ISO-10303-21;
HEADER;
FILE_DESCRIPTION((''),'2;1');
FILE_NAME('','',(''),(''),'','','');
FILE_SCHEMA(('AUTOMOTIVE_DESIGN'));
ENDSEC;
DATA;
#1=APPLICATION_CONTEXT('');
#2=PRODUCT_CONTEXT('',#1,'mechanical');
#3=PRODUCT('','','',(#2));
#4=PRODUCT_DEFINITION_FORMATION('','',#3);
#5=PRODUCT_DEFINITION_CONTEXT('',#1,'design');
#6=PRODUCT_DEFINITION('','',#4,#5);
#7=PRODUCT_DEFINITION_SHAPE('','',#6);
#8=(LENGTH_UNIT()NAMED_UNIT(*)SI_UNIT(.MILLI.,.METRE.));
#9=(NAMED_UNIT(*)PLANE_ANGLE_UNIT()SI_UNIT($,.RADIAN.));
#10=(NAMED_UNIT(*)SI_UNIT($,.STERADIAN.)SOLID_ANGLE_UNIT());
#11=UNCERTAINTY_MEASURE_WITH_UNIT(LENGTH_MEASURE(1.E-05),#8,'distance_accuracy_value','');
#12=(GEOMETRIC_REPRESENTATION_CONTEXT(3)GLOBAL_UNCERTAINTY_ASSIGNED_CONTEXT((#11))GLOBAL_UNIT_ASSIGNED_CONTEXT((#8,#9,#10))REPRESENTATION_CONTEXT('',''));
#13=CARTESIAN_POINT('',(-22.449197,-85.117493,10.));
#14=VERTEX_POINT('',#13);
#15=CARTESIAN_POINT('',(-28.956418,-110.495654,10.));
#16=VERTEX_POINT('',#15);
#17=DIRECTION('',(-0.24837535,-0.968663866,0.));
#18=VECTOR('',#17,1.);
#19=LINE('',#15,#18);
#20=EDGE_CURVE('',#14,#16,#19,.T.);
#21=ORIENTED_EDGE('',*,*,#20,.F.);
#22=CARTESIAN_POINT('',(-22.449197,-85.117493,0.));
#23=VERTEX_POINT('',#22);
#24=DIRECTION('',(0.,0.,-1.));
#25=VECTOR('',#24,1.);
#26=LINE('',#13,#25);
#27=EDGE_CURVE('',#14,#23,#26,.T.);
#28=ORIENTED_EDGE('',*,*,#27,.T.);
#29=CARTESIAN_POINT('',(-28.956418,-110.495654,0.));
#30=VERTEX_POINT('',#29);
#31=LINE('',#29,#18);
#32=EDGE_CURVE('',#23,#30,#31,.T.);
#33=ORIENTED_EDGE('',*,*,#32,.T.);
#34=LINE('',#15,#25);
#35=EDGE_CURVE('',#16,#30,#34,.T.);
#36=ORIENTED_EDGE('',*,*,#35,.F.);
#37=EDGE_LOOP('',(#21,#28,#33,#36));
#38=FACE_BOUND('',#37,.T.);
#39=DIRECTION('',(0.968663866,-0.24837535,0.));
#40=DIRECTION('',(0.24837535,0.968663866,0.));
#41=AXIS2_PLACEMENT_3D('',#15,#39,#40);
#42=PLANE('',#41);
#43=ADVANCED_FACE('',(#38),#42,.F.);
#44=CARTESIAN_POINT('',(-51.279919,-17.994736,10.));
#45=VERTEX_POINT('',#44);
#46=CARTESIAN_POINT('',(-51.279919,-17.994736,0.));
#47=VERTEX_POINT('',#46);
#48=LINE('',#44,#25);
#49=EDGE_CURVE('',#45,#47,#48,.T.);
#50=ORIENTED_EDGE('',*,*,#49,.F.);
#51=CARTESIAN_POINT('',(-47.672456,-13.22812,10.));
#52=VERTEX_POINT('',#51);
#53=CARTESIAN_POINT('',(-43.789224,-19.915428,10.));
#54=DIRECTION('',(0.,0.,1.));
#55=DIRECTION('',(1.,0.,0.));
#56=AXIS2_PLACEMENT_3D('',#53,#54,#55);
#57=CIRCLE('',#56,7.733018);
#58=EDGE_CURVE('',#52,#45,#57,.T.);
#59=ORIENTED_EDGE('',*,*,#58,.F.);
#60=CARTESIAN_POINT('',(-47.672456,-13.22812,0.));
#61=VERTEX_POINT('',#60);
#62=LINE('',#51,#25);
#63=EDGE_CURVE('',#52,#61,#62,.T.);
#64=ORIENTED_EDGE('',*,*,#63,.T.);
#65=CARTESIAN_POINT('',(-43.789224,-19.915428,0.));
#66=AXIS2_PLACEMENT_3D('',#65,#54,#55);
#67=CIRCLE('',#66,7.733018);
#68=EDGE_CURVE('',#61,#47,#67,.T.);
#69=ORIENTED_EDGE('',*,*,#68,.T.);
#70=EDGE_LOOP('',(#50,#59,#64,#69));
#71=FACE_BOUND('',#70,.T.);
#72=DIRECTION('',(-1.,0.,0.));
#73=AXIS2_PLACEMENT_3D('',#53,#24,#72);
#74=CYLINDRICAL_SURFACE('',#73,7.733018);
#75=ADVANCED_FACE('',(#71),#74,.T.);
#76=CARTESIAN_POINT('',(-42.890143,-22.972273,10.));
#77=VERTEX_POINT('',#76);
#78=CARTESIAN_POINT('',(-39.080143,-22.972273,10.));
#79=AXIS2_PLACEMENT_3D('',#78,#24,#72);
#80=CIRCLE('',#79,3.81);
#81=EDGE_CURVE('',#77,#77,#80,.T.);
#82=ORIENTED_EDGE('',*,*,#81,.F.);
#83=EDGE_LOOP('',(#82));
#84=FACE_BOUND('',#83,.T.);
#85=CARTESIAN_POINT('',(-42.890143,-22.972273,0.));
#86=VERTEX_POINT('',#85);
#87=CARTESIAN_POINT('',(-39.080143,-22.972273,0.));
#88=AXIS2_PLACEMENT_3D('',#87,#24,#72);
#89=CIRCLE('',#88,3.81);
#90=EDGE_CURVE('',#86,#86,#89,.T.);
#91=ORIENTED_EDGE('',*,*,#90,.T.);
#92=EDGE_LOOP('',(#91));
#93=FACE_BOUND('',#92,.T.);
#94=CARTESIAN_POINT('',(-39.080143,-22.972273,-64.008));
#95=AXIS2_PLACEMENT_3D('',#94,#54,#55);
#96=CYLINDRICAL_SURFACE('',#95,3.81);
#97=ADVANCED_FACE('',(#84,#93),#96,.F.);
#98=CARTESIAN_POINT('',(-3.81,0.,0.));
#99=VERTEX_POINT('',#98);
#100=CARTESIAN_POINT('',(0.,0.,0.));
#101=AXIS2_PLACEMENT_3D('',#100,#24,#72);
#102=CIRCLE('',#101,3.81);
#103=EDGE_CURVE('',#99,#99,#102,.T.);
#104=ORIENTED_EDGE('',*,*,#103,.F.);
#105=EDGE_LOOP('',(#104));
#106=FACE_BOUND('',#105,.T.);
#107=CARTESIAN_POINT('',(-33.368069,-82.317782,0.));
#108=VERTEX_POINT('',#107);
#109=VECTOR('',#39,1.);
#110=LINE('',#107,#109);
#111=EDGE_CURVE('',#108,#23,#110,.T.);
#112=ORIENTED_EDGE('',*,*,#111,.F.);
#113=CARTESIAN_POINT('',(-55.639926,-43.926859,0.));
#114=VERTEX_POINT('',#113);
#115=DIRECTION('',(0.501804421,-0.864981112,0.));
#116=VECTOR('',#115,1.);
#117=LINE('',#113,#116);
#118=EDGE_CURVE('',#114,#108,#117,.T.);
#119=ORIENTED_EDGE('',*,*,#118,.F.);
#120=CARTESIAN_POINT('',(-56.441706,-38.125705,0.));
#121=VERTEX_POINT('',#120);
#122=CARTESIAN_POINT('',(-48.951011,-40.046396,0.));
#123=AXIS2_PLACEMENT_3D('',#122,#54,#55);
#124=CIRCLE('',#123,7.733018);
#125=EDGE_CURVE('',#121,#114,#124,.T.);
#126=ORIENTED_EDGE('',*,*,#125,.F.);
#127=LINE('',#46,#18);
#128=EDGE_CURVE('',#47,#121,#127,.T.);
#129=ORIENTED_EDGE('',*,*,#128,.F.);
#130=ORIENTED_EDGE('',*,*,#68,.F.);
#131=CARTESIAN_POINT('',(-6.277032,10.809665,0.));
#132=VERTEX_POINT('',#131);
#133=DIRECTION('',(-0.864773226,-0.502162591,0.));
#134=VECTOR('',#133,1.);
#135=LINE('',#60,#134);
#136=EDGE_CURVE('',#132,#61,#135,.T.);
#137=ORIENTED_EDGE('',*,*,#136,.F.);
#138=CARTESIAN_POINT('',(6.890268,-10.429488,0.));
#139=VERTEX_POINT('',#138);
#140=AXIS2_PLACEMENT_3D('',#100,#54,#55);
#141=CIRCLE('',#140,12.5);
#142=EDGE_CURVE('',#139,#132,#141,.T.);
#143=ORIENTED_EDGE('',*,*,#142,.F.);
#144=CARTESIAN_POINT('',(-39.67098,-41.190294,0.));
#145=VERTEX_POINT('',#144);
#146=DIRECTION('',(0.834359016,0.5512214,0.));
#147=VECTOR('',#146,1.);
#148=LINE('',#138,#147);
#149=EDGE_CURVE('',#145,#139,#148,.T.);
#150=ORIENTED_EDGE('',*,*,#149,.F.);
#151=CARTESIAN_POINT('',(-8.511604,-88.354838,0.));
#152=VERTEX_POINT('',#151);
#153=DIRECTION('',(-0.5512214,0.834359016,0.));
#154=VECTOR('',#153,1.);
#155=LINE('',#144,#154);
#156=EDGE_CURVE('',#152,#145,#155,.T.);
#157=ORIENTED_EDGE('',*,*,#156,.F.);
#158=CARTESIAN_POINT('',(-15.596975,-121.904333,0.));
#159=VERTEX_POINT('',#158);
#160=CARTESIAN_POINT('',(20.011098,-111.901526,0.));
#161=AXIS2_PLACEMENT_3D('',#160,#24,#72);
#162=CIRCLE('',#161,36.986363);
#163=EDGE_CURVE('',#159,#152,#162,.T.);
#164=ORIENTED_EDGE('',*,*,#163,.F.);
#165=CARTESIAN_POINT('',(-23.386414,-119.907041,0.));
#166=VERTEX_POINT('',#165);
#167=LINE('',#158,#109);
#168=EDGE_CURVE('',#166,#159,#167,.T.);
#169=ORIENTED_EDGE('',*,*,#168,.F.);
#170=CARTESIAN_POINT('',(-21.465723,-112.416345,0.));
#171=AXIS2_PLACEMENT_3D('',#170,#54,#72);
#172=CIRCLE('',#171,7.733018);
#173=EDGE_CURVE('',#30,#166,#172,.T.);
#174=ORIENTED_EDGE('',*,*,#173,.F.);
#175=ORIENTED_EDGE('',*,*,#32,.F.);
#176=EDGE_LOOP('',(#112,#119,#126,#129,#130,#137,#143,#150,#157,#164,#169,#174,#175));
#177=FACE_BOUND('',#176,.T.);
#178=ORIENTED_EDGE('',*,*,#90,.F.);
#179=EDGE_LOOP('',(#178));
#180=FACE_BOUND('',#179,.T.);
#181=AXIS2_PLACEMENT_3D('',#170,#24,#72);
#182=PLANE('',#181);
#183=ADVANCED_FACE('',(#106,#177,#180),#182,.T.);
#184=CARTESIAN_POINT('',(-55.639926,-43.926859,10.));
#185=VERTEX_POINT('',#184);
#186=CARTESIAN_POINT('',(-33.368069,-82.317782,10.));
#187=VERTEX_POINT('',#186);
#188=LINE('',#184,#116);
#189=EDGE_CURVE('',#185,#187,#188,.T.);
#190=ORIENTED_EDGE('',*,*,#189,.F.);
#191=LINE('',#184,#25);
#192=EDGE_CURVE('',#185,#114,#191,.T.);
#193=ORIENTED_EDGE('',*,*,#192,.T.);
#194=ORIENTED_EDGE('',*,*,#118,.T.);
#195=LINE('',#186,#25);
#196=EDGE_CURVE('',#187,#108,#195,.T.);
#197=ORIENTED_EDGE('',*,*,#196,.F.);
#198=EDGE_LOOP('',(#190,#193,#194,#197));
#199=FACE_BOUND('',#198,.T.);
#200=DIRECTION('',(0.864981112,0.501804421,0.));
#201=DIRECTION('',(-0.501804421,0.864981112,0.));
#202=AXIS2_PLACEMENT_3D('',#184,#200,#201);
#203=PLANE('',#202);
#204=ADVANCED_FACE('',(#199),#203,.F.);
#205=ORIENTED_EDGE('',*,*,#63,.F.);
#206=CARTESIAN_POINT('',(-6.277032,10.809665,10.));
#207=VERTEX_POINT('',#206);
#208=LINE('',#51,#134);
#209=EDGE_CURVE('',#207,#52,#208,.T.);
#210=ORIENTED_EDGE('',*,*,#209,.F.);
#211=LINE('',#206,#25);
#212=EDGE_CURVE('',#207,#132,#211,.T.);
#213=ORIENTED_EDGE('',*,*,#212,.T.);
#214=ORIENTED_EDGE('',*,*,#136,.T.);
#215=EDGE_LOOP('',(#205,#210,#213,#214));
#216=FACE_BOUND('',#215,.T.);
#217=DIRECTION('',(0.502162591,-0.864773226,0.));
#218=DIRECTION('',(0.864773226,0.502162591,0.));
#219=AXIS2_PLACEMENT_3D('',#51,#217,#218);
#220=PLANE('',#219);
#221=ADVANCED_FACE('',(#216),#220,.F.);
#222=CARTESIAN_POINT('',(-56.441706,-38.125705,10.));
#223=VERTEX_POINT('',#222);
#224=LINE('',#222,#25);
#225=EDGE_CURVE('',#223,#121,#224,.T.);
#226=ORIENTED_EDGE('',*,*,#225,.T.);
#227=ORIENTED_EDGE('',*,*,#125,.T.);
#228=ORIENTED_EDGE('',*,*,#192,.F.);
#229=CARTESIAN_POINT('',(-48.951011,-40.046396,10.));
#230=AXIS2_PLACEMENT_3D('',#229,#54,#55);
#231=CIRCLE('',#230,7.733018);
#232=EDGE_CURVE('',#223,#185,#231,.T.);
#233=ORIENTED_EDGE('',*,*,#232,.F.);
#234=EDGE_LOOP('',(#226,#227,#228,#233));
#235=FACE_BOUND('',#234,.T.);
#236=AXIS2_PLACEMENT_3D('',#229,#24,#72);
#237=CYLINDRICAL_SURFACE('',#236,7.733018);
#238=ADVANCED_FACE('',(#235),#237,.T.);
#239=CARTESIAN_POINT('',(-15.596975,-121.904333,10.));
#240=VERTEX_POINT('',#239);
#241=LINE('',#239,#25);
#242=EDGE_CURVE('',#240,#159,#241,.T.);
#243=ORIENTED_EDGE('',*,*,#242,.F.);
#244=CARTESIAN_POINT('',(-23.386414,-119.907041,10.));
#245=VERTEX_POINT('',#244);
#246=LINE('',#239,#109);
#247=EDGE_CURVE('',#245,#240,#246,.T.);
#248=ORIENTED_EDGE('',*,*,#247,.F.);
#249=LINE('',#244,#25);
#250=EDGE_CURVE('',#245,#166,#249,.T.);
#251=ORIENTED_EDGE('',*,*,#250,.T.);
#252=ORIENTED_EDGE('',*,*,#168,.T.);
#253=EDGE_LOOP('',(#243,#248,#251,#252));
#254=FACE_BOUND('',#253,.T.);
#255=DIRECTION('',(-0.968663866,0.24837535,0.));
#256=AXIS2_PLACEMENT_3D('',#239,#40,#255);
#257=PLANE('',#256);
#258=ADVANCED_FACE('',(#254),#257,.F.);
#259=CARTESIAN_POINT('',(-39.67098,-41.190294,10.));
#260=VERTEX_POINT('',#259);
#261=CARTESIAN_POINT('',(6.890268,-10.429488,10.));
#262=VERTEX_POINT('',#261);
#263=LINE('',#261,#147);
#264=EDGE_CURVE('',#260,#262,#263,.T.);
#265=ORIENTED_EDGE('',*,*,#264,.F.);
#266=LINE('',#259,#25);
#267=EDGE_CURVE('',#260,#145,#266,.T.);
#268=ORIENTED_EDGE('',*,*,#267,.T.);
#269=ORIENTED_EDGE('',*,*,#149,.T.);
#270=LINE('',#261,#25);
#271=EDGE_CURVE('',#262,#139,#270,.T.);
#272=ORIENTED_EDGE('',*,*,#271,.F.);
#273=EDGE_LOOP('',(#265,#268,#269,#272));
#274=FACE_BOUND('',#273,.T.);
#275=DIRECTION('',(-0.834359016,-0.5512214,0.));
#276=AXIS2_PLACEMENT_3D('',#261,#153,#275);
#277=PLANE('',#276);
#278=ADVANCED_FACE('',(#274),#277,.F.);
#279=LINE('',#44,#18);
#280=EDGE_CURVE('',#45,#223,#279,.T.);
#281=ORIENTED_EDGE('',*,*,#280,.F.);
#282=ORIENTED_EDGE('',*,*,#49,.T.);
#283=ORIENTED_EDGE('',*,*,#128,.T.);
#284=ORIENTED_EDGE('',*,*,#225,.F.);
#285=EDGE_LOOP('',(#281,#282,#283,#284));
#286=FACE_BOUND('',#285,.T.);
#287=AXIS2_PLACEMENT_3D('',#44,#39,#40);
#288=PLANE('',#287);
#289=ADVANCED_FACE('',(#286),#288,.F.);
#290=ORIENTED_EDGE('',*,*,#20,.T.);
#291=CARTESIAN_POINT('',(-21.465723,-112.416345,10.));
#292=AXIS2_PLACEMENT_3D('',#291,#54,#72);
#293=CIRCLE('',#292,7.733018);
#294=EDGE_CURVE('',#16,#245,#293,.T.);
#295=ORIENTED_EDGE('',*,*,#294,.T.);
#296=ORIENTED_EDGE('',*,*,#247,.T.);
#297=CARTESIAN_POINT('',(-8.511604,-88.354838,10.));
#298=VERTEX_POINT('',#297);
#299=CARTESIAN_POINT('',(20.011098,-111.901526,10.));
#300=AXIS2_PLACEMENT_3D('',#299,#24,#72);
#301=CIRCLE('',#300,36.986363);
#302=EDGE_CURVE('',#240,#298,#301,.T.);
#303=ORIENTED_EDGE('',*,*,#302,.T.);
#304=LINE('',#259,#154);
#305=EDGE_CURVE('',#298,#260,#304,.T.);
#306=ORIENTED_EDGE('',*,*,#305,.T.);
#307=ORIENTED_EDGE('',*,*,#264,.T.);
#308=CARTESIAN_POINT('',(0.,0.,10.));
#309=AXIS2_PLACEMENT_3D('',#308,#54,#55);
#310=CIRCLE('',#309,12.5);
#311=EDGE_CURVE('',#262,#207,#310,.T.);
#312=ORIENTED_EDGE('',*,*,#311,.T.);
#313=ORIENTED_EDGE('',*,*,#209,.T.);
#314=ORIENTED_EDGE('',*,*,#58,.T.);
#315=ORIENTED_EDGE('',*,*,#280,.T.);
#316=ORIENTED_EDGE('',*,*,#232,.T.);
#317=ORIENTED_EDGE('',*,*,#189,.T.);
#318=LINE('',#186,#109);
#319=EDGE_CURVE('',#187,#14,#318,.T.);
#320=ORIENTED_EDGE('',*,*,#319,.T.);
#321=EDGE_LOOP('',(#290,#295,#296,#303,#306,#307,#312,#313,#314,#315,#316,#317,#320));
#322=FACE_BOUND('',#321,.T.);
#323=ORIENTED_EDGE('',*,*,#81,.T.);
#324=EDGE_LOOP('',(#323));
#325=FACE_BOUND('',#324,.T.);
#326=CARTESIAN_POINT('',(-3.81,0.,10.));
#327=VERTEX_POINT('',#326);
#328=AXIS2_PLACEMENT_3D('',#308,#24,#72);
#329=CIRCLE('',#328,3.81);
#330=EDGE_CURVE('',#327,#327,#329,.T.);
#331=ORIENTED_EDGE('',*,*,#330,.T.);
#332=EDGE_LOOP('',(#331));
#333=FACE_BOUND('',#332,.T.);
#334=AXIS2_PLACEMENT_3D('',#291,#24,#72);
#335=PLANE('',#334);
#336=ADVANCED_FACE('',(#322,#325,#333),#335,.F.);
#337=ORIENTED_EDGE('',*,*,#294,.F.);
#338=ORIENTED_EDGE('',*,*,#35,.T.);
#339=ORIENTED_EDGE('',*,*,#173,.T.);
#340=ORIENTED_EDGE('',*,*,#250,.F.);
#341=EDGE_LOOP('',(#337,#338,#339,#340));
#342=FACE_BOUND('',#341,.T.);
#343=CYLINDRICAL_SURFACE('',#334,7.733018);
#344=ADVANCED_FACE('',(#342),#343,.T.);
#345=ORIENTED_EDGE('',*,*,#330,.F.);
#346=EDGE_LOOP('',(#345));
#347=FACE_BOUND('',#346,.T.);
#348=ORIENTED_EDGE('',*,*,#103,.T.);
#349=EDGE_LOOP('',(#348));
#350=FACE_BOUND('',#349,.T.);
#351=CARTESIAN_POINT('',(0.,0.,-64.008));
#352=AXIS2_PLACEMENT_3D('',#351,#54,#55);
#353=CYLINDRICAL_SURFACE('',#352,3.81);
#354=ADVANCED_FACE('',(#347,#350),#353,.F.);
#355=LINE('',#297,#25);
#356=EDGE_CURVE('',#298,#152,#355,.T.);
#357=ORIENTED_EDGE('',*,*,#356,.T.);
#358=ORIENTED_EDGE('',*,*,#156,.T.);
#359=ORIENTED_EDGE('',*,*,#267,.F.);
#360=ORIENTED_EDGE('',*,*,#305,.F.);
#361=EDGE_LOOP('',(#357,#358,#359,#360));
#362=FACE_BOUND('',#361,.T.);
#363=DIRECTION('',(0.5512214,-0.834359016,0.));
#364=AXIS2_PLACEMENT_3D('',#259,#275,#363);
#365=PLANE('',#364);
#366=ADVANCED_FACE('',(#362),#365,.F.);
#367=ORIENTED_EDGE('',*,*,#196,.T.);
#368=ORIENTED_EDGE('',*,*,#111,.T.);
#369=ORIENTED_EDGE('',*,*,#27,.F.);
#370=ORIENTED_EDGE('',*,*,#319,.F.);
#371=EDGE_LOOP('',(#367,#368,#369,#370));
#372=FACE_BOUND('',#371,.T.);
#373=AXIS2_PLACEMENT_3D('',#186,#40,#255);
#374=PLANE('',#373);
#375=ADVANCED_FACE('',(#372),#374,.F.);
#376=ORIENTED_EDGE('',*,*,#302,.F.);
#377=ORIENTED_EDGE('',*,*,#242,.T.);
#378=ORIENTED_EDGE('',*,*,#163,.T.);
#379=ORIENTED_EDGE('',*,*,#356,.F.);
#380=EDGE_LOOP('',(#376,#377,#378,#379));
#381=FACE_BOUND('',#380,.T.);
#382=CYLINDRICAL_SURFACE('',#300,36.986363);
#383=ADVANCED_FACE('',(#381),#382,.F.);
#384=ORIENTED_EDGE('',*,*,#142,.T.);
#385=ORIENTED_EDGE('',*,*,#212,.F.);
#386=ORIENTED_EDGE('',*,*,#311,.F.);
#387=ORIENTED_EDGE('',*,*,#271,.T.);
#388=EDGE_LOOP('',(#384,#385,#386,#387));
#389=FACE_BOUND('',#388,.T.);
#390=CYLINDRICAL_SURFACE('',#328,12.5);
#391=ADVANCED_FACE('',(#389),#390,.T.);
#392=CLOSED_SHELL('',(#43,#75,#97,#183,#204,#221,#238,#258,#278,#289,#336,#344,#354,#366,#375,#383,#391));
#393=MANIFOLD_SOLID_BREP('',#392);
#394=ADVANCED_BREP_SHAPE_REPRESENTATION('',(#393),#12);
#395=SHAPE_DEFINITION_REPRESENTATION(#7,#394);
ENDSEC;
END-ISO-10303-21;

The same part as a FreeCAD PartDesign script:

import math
import FreeCAD as App
import Part
import Sketcher

V = App.Vector

doc = App.newDocument("Part")
body = doc.addObject("PartDesign::Body", "Body")

# Sketch on XY plane
sketch1 = doc.addObject("Sketcher::SketchObject", "Sketch")
body.addObject(sketch1)
sketch1.AttachmentSupport = (doc.XY_Plane, [""])
sketch1.MapMode = "FlatFace"
sketch1.addGeometry([
    Part.LineSegment(V(-51.279919, -17.994736, 0), V(-56.441706, -38.125705, 0)),  # 0
    Part.ArcOfCircle(Part.Circle(V(-48.951011, -40.046396, 0), V(0, 0, 1), 7.733018), math.radians(165.618605), math.radians(210.119451)),  # 1
    Part.LineSegment(V(-55.639926, -43.926859, 0), V(-33.368069, -82.317782, 0)),  # 2
    Part.LineSegment(V(-33.368069, -82.317782, 0), V(-22.449197, -85.117493, 0)),  # 3
    Part.LineSegment(V(-22.449197, -85.117493, 0), V(-28.956418, -110.495654, 0)),  # 4
    Part.ArcOfCircle(Part.Circle(V(-21.465723, -112.416345, 0), V(0, 0, 1), 7.733018), math.radians(165.618605), math.radians(255.618605)),  # 5
    Part.LineSegment(V(-23.386414, -119.907041, 0), V(-15.596975, -121.904333, 0)),  # 6
    Part.ArcOfCircle(Part.Circle(V(20.011098, -111.901526, 0), V(0, 0, 1), 36.986363), math.radians(140.458896), math.radians(195.690796)),  # 7
    Part.LineSegment(V(-8.511604, -88.354838, 0), V(-39.67098, -41.190294, 0)),  # 8
    Part.LineSegment(V(-39.67098, -41.190294, 0), V(6.890268, -10.429488, 0)),  # 9
    Part.ArcOfCircle(Part.Circle(V(0, 0, 0), V(0, 0, 1), 12.5), math.radians(-56.549153), math.radians(120.143179)),  # 10
    Part.LineSegment(V(-6.277032, 10.809665, 0), V(-47.672456, -13.22812, 0)),  # 11
    Part.ArcOfCircle(Part.Circle(V(-43.789224, -19.915428, 0), V(0, 0, 1), 7.733018), math.radians(120.143179), math.radians(165.618605)),  # 12
], False)
sketch1.addConstraint([
    Sketcher.Constraint("Tangent", 0, 2, 1, 1),
    Sketcher.Constraint("Tangent", 1, 2, 2, 1),
    Sketcher.Constraint("Coincident", 2, 2, 3, 1),
    Sketcher.Constraint("Coincident", 3, 2, 4, 1),
    Sketcher.Constraint("Tangent", 4, 2, 5, 1),
    Sketcher.Constraint("Tangent", 5, 2, 6, 1),
    Sketcher.Constraint("Coincident", 6, 2, 7, 2),
    Sketcher.Constraint("Coincident", 7, 1, 8, 1),
    Sketcher.Constraint("Coincident", 8, 2, 9, 1),
    Sketcher.Constraint("Tangent", 9, 2, 10, 1),
    Sketcher.Constraint("Tangent", 10, 2, 11, 1),
    Sketcher.Constraint("Tangent", 11, 2, 12, 1),
    Sketcher.Constraint("Tangent", 12, 2, 0, 1),
    Sketcher.Constraint("Coincident", 10, 3, -1, 1),
    Sketcher.Constraint("Equal", 1, 5),
    Sketcher.Constraint("Equal", 5, 12),
    Sketcher.Constraint("Perpendicular", 0, 3),
    Sketcher.Constraint("Perpendicular", 3, 4),
    Sketcher.Constraint("Perpendicular", 4, 6),
    Sketcher.Constraint("Perpendicular", 8, 9),
    Sketcher.Constraint("Radius", 10, 12.5),
    Sketcher.Constraint("Radius", 1, 7.733018),
    Sketcher.Constraint("Radius", 7, 36.986363),
    Sketcher.Constraint("DistanceX", 12, 3, 5, 3, 22.323501),
    Sketcher.Constraint("DistanceY", 7, 3, 12, 3, 91.986099),
    Sketcher.Constraint("DistanceX", 1, 2, 12, 3, 11.850702),
    Sketcher.Constraint("DistanceX", 10, 2, 9, 2, 13.1673),
    Sketcher.Constraint("Distance", 2, 44.38354),
    Sketcher.Constraint("Distance", 4, 26.199141),
    Sketcher.Constraint("Distance", 9, 55.804811),
    Sketcher.Constraint("Distance", 11, 47.868531),
    Sketcher.Constraint("DistanceX", 1, 3, -1, 1, 48.951011),
    Sketcher.Constraint("DistanceY", 1, 2, -1, 1, 43.926859),
    Sketcher.Constraint("DistanceX", 2, 2, -1, 1, 33.368069),
    Sketcher.Constraint("DistanceY", 7, 1, -1, 1, 88.354838),
])
pad1 = doc.addObject("PartDesign::Pad", "Pad")
body.addObject(pad1)
pad1.Profile = sketch1
pad1.Length = 10

# Sketch on XY plane
sketch2 = doc.addObject("Sketcher::SketchObject", "Sketch001")
body.addObject(sketch2)
sketch2.AttachmentSupport = (doc.XY_Plane, [""])
sketch2.MapMode = "FlatFace"
sketch2.addGeometry([
    Part.Circle(V(0, 0, 0), V(0, 0, 1), 3.81),
    Part.Circle(V(-39.080143, -22.972273, 0), V(0, 0, 1), 3.81),
], False)
sketch2.addConstraint([
    Sketcher.Constraint("Coincident", 0, 3, -1, 1),
    Sketcher.Constraint("Equal", 0, 1),
    Sketcher.Constraint("Diameter", 0, 7.62),
    Sketcher.Constraint("DistanceX", 1, 3, -1, 1, 39.080143),
    Sketcher.Constraint("DistanceY", 1, 3, -1, 1, 22.972273),
])
pocket1 = doc.addObject("PartDesign::Pocket", "Pocket")
body.addObject(pocket1)
pocket1.Profile = sketch2
pocket1.Type = "ThroughAll"
pocket1.Midplane = True

doc.recompute()
